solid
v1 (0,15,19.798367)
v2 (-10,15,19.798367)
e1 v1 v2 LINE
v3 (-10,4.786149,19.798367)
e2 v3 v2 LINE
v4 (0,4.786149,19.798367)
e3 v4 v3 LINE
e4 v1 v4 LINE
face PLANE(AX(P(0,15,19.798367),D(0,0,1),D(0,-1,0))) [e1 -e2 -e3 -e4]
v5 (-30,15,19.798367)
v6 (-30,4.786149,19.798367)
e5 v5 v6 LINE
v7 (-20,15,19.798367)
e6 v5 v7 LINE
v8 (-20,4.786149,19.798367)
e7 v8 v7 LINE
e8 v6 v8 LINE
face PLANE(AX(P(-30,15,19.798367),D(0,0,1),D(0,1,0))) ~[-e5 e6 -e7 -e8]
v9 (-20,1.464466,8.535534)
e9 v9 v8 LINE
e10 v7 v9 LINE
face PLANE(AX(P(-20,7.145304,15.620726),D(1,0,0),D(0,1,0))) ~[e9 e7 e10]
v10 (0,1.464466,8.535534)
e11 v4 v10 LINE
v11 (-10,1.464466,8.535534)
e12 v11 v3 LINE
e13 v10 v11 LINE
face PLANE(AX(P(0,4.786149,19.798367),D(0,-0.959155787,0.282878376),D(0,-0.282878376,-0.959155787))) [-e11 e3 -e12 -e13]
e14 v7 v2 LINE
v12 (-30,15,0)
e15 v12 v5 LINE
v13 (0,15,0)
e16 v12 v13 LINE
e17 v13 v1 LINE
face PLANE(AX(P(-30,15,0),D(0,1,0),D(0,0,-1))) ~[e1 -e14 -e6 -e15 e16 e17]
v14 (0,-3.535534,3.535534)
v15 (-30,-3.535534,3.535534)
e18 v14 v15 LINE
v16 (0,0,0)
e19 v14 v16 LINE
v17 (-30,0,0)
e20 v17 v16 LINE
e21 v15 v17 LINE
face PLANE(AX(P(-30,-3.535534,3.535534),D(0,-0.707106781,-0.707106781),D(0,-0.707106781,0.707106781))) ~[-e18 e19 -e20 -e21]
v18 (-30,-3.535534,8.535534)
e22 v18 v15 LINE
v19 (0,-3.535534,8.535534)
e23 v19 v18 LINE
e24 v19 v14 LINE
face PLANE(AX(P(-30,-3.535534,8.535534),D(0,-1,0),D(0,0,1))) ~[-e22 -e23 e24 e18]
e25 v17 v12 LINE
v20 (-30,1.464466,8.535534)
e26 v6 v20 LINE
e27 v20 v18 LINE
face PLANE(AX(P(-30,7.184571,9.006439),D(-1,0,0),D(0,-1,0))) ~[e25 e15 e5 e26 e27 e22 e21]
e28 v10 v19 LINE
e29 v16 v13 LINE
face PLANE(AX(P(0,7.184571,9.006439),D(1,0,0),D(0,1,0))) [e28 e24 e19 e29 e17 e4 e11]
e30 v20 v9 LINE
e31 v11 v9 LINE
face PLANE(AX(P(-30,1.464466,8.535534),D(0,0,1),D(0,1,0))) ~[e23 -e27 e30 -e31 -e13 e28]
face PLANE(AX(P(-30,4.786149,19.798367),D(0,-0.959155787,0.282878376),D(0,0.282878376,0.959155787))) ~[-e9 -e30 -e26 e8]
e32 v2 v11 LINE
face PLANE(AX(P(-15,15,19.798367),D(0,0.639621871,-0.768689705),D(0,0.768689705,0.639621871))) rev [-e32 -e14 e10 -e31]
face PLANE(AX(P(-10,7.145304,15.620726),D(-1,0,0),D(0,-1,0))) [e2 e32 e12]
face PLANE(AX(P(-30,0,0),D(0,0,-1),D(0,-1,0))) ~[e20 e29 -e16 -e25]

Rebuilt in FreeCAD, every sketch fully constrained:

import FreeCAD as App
import Part
import Sketcher
Q = App.Units.Quantity

doc = App.newDocument("Part")
params = doc.addObject("Spreadsheet::Sheet", "Params")
for row, (alias, value) in enumerate([
    ("sketch1_width", "15 mm"),
    ("sketch1_width2", "5 mm"),
    ("sketch1_length", "5 mm"),
    ("pad1_length", "15 mm"),
    ("pocket1_length", "5 mm"),
], start=1):
    params.set(f"A{row}", alias)
    params.set(f"B{row}", "=" + value)
    params.setAlias(f"B{row}", alias)

body = doc.addObject("PartDesign::Body", "Body")

# Sketch on YZ plane
sketch1 = doc.addObject("Sketcher::SketchObject", "Sketch")
body.addObject(sketch1)
sketch1.AttachmentSupport = (doc.YZ_Plane, [""])
sketch1.MapMode = "FlatFace"
sketch1.addGeometry([
    Part.LineSegment(App.Vector(-4, 4, 0), App.Vector(0, 0, 0)),  # 0
    Part.LineSegment(App.Vector(0, 0, 0), App.Vector(15, 0, 0)),  # 1
    Part.LineSegment(App.Vector(15, 0, 0), App.Vector(15, 20, 0)),  # 2
    Part.LineSegment(App.Vector(15, 20, 0), App.Vector(5, 20, 0)),  # 3
    Part.LineSegment(App.Vector(5, 20, 0), App.Vector(1, 9, 0)),  # 4
    Part.LineSegment(App.Vector(1, 9, 0), App.Vector(-4, 9, 0)),  # 5
    Part.LineSegment(App.Vector(-4, 9, 0), App.Vector(-4, 4, 0)),  # 6
], False)
sketch1.addConstraint([
    Sketcher.Constraint("Coincident", 0, 2, 1, 1),
    Sketcher.Constraint("Coincident", 1, 2, 2, 1),
    Sketcher.Constraint("Coincident", 2, 2, 3, 1),
    Sketcher.Constraint("Coincident", 3, 2, 4, 1),
    Sketcher.Constraint("Coincident", 4, 2, 5, 1),
    Sketcher.Constraint("Coincident", 5, 2, 6, 1),
    Sketcher.Constraint("Coincident", 6, 2, 0, 1),
    Sketcher.Constraint("Horizontal", 1),
    Sketcher.Constraint("Vertical", 2),
    Sketcher.Constraint("Horizontal", 3),
    Sketcher.Constraint("Horizontal", 5),
    Sketcher.Constraint("Vertical", 6),
    Sketcher.Constraint("Coincident", 0, 2, -1, 1),
    Sketcher.Constraint("Equal", 5, 6),
    Sketcher.Constraint("DistanceX", 1, 1, 1, 2, Q("15 mm")),
    Sketcher.Constraint("DistanceX", 5, 2, 5, 1, Q("5 mm")),
    Sketcher.Constraint("Angle", 0, Q("-45 deg")),
    Sketcher.Constraint("Distance", 0, Q("5 mm")),
    Sketcher.Constraint("DistanceX", 3, 2, 3, 1, Q("10.213851 mm")),
    Sketcher.Constraint("DistanceY", 2, 1, 2, 2, Q("19.798367 mm")),
])
sketch1.setExpression("Constraints[14]", "Params.sketch1_width")
sketch1.setExpression("Constraints[15]", "Params.sketch1_width2")
sketch1.setExpression("Constraints[17]", "Params.sketch1_length")
pad1 = doc.addObject("PartDesign::Pad", "Pad")
body.addObject(pad1)
pad1.Profile = sketch1
pad1.setExpression("Length", "Params.pad1_length")
pad1.Reversed = True

# Sketch on YZ plane
sketch2 = doc.addObject("Sketcher::SketchObject", "Sketch001")
body.addObject(sketch2)
sketch2.AttachmentSupport = (doc.YZ_Plane, [""])
sketch2.MapMode = "FlatFace"
sketch2.AttachmentOffset = App.Placement(App.Vector(0, 0, -15), App.Rotation())
sketch2.addGeometry([
    Part.LineSegment(App.Vector(5, 20, 0), App.Vector(15, 20, 0)),
    Part.LineSegment(App.Vector(15, 20, 0), App.Vector(1, 9, 0)),
    Part.LineSegment(App.Vector(1, 9, 0), App.Vector(5, 20, 0)),
], False)
sketch2.addConstraint([
    Sketcher.Constraint("Coincident", 0, 2, 1, 1),
    Sketcher.Constraint("Coincident", 1, 2, 2, 1),
    Sketcher.Constraint("Coincident", 2, 2, 0, 1),
    Sketcher.Constraint("Horizontal", 0),
    Sketcher.Constraint("DistanceX", -1, 1, 0, 2, Q("15 mm")),
    Sketcher.Constraint("DistanceX", 0, 1, 0, 2, Q("10.213851 mm")),
    Sketcher.Constraint("Distance", 1, Q("17.60858 mm")),
    Sketcher.Constraint("Distance", 2, Q("11.742444 mm")),
    Sketcher.Constraint("DistanceY", -1, 1, 0, 2, Q("19.798367 mm")),
])
pocket1 = doc.addObject("PartDesign::Pocket", "Pocket")
body.addObject(pocket1)
pocket1.Profile = sketch2
pocket1.setExpression("Length", "Params.pocket1_length")
pocket1.Reversed = True
body2 = doc.addObject("PartDesign::Body", "Body001")
doc.recompute()

body2.BaseFeature = body
doc.recompute()

mirroring = doc.addObject("Part::Mirroring", "Mirroring")
mirroring.Source = body
mirroring.Base = App.Vector(-15, 0, 0)
mirroring.Normal = App.Vector(1, 0, 0)
body3 = doc.addObject("PartDesign::Body", "Body002")
body3.BaseFeature = mirroring
boolean = doc.addObject("PartDesign::Boolean", "Boolean")
body2.addObject(boolean)
boolean.Type = "Fuse"
boolean.addObjects([body3])
doc.recompute()
mirroring.Visibility = False

doc.recompute()
